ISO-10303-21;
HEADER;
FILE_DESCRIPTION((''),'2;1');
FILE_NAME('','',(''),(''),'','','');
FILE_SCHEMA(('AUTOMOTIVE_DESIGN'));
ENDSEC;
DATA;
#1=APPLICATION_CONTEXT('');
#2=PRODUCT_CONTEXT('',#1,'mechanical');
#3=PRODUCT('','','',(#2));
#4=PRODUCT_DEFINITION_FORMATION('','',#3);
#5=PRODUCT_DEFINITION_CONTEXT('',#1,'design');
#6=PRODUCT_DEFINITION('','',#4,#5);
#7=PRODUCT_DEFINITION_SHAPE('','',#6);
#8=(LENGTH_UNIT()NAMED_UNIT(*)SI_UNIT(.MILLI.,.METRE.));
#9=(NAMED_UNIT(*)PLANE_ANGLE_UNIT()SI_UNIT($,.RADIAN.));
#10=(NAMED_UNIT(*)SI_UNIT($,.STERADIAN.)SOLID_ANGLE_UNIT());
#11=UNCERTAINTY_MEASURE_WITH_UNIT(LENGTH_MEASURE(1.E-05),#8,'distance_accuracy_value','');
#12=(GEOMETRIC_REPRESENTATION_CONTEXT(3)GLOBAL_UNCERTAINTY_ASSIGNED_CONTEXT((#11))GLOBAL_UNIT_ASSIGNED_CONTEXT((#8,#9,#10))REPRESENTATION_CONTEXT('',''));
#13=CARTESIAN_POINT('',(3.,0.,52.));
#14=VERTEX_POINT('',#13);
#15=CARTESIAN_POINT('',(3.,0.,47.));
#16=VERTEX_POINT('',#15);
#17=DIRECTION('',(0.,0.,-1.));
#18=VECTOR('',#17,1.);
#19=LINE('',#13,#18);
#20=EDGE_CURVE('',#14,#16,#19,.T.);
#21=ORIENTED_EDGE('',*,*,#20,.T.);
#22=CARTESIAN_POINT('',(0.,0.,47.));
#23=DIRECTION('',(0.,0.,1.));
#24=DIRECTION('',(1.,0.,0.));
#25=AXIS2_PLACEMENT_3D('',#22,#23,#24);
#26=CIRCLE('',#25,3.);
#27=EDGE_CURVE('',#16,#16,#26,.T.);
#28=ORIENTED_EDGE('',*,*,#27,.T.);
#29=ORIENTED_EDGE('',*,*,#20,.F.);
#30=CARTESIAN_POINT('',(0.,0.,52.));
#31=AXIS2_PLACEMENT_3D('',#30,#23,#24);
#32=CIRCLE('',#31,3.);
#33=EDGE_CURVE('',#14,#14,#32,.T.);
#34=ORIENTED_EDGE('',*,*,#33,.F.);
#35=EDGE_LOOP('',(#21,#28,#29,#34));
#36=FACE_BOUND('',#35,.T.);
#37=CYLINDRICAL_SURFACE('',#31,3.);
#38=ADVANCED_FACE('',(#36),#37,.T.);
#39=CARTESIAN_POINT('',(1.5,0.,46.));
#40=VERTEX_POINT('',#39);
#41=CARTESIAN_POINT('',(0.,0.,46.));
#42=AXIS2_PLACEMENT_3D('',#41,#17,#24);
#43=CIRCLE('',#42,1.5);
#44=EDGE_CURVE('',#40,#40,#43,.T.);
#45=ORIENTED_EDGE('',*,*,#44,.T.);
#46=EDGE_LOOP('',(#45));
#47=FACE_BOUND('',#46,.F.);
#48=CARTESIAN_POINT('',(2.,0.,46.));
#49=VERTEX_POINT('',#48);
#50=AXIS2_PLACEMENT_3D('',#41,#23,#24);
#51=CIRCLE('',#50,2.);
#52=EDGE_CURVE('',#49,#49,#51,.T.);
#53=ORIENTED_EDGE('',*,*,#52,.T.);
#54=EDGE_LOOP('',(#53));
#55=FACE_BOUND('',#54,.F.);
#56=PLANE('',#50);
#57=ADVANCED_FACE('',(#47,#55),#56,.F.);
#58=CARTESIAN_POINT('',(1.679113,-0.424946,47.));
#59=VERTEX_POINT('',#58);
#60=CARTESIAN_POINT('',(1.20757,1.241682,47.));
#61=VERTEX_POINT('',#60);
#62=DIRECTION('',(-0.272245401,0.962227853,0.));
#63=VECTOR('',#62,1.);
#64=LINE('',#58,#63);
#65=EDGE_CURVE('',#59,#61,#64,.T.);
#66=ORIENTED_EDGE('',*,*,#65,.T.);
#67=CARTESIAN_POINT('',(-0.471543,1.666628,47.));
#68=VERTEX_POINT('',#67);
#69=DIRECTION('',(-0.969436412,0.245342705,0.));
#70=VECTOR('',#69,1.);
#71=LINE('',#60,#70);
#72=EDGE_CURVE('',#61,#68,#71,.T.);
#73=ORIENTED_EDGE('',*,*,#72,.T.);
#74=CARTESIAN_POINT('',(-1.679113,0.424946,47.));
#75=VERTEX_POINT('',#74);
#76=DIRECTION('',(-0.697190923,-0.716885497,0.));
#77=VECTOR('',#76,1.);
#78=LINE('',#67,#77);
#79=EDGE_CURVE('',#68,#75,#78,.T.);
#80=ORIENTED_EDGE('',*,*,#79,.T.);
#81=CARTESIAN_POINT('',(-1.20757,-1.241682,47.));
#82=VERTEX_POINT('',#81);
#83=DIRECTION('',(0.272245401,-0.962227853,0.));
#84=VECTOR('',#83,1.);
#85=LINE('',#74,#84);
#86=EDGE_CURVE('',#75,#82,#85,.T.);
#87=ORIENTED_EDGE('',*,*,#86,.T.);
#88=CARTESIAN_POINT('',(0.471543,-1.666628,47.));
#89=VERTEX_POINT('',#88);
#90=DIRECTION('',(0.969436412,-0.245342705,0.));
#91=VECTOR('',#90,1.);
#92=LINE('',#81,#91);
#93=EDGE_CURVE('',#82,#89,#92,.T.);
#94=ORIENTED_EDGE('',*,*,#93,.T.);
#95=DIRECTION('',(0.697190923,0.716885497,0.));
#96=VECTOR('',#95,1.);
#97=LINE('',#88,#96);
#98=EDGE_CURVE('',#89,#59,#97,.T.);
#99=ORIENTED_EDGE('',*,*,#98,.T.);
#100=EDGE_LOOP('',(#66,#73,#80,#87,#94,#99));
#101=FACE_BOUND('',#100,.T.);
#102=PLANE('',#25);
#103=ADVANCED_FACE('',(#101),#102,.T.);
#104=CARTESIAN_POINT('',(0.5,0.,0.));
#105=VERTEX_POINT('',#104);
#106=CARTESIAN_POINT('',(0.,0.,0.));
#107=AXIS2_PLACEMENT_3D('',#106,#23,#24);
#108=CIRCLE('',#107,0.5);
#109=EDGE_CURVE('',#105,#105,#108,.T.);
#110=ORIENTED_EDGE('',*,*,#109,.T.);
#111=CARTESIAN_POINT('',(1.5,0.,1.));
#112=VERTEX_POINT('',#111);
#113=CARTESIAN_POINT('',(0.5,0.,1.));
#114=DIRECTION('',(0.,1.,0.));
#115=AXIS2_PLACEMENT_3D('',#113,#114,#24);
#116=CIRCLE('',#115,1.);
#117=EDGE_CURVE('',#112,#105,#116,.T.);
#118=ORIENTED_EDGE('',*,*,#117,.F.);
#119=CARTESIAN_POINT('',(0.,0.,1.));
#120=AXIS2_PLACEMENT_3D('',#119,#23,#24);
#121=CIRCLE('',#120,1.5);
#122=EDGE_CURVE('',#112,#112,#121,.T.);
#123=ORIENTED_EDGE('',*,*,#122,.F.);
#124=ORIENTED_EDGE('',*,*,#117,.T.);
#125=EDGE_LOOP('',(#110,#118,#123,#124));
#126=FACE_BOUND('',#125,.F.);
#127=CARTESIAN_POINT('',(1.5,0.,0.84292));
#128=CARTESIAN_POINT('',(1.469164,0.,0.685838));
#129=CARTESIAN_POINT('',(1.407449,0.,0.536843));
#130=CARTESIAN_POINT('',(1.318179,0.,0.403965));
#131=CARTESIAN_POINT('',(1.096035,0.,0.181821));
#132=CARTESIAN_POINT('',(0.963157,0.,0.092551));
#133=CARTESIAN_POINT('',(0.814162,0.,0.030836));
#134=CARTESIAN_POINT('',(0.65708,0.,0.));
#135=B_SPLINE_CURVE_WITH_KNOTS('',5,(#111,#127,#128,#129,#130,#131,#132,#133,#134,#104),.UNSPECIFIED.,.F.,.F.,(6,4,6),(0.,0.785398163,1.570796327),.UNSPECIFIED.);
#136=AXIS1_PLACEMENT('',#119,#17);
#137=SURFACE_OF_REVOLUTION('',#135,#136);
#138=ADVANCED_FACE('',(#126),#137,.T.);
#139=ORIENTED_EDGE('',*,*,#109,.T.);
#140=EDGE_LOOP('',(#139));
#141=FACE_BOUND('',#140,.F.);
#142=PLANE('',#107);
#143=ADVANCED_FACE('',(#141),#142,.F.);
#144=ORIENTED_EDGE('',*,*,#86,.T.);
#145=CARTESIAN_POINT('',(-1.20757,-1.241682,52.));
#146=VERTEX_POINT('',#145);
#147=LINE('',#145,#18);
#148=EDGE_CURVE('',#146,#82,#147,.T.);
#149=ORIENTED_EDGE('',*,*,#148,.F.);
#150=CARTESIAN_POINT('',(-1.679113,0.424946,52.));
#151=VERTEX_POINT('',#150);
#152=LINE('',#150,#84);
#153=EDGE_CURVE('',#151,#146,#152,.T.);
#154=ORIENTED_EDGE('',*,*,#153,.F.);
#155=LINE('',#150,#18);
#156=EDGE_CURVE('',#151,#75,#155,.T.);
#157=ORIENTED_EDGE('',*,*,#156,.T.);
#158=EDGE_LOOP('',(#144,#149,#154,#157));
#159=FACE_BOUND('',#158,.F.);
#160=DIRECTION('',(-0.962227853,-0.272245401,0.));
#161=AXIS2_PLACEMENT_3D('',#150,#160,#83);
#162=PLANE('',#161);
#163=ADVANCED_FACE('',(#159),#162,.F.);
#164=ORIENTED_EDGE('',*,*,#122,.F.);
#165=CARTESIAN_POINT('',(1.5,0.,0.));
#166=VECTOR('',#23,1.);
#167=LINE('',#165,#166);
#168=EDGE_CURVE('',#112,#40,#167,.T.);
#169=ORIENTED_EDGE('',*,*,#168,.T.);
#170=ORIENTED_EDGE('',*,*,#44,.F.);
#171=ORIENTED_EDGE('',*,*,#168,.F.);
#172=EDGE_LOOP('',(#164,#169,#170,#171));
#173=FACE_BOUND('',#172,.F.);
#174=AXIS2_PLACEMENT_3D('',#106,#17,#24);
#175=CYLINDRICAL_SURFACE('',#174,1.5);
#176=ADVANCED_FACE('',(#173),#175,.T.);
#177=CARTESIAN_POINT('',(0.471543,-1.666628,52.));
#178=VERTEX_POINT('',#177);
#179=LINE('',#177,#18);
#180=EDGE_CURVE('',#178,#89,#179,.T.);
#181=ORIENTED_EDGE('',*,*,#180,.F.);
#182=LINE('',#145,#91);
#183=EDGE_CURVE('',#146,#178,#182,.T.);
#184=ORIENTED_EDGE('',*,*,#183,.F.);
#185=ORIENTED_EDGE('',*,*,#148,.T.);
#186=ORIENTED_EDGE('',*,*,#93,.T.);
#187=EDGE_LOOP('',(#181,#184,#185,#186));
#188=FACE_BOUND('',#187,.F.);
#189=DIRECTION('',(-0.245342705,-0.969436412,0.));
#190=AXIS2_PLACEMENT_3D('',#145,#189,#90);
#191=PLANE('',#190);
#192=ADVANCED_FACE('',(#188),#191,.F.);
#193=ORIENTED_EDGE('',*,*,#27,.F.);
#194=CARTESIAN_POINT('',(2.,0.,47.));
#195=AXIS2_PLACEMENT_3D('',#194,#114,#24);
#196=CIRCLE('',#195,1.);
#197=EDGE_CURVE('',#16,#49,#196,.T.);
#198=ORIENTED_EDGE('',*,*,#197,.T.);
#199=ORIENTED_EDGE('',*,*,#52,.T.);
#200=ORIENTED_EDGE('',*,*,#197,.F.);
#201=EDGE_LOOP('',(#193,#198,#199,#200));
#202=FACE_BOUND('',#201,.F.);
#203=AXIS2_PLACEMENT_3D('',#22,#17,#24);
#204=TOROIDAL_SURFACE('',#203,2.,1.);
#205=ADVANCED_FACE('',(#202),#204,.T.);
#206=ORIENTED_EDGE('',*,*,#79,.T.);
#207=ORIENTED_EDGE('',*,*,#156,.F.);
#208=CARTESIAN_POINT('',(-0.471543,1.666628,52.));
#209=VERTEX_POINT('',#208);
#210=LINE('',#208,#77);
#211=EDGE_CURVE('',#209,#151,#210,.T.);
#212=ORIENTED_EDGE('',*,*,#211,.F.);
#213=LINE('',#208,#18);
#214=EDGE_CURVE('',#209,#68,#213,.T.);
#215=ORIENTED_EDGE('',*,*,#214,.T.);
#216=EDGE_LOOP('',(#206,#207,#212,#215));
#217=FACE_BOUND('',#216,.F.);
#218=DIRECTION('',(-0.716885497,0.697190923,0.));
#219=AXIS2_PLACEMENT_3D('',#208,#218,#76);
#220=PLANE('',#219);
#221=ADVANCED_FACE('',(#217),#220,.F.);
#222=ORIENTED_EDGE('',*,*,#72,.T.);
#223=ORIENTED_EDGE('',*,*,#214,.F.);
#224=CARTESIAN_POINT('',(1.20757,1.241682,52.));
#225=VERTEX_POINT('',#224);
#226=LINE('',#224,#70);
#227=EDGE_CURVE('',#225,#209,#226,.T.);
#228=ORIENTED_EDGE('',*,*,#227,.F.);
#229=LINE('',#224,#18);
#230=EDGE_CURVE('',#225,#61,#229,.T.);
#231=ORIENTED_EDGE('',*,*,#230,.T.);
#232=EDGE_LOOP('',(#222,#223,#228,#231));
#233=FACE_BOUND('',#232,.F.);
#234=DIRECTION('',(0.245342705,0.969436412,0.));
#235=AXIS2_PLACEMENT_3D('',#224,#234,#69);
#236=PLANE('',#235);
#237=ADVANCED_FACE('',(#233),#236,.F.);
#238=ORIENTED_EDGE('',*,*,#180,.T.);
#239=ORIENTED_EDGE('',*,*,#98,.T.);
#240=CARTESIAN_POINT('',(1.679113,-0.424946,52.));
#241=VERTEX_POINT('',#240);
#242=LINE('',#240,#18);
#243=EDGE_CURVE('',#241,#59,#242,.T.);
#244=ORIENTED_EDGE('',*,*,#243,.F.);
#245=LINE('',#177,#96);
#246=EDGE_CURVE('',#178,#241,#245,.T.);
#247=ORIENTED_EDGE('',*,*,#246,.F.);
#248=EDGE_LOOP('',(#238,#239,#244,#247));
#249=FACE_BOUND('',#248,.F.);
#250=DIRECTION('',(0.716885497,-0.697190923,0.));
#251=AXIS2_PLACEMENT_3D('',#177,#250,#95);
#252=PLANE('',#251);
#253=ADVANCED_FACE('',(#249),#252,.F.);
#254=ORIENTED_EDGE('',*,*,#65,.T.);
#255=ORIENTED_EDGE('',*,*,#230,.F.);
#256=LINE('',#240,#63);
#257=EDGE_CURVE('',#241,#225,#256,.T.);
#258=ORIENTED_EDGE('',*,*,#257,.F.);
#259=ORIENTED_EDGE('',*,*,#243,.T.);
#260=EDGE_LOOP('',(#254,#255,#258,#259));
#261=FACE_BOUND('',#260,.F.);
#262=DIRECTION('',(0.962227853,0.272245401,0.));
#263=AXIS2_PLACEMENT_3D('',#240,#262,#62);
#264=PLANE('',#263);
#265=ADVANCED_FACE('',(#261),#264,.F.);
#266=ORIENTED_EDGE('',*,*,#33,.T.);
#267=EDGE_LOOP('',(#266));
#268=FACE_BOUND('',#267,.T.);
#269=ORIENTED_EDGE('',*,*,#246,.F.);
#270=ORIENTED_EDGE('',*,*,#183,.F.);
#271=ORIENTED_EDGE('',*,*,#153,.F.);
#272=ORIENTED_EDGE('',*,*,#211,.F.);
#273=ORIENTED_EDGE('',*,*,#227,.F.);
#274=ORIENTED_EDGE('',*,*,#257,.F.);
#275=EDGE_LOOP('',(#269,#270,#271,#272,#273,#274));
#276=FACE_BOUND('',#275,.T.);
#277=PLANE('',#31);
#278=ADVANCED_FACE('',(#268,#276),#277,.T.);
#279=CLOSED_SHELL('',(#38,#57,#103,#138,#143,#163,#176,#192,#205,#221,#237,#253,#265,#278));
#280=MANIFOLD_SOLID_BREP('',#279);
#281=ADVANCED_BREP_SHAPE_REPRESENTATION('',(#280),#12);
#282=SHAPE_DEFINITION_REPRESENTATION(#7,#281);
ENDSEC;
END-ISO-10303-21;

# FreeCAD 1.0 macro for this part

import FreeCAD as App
import Part
import Sketcher


def edges_at(feature, points):
    """Names of the edges that pass closest to the given points."""
    edges = feature.Shape.Edges
    near = lambda p: min(range(len(edges)), key=lambda i: edges[i].distToShape(Part.Vertex(*p))[0])
    return sorted({f"Edge{near(p) + 1}" for p in points})


def add_polygon(sketch, points):
    """Adds a closed chain of lines whose ends are joined by coincident constraints."""
    first, n = sketch.GeometryCount, len(points)
    for a, b in zip(points, points[1:] + points[:1]):
        sketch.addGeometry(Part.LineSegment(App.Vector(*a, 0), App.Vector(*b, 0)), False)
    for i in range(n):
        sketch.addConstraint(Sketcher.Constraint("Coincident", first + i, 2, first + (i + 1) % n, 1))

doc = App.newDocument("Part")
params = doc.addObject("Spreadsheet::Sheet", "Params")
for row, (alias, value) in enumerate([
    ("sketch1_diameter", "3 mm"),
    ("pad1_length", "52 mm"),
    ("sketch2_diameter", "6 mm"),
    ("pad2_length", "6 mm"),
    ("pocket1_length", "5 mm"),
    ("fillet_radius", "1 mm"),
], start=1):
    params.set(f"A{row}", alias)
    params.set(f"B{row}", "=" + value)
    params.setAlias(f"B{row}", alias)

body = doc.addObject("PartDesign::Body", "Body")

# Sketch on XY plane
sketch1 = body.newObject("Sketcher::SketchObject", "Sketch")
sketch1.AttachmentSupport = (doc.getObject("XY_Plane"), [""])
sketch1.MapMode = "FlatFace"
sketch1.addGeometry(Part.Circle(App.Vector(0, 0, 0), App.Vector(0, 0, 1), 1.5), False)
sketch1.addConstraint(Sketcher.Constraint("Coincident", 0, 3, -1, 1))
sketch1.addConstraint(Sketcher.Constraint("Diameter", 0, 3.0))
sketch1.setExpression("Constraints[1]", "Params.sketch1_diameter")
pad1 = body.newObject("PartDesign::Pad", "Pad")
pad1.Profile = sketch1
pad1.setExpression("Length", "Params.pad1_length")

# Sketch on XY plane
sketch2 = body.newObject("Sketcher::SketchObject", "Sketch001")
sketch2.AttachmentSupport = (doc.getObject("XY_Plane"), [""])
sketch2.MapMode = "FlatFace"
sketch2.AttachmentOffset = App.Placement(App.Vector(0, 0, 52), App.Rotation())
sketch2.addGeometry(Part.Circle(App.Vector(0, 0, 0), App.Vector(0, 0, 1), 3), False)
sketch2.addConstraint(Sketcher.Constraint("Coincident", 0, 3, -1, 1))
sketch2.addConstraint(Sketcher.Constraint("Diameter", 0, 6.0))
sketch2.setExpression("Constraints[1]", "Params.sketch2_diameter")
pad2 = body.newObject("PartDesign::Pad", "Pad001")
pad2.Profile = sketch2
pad2.setExpression("Length", "Params.pad2_length")
pad2.Reversed = True

# Sketch on XY plane
sketch3 = body.newObject("Sketcher::SketchObject", "Sketch002")
sketch3.AttachmentSupport = (doc.getObject("XY_Plane"), [""])
sketch3.MapMode = "FlatFace"
sketch3.AttachmentOffset = App.Placement(App.Vector(0, 0, 52), App.Rotation())
add_polygon(sketch3, [(0.5, -1.7), (1.7, -0.4), (1.2, 1.2), (-0.5, 1.7), (-1.7, 0.4), (-1.2, -1.2)])  # lines 0-5
sketch3.addConstraint(Sketcher.Constraint("Symmetric", 0, 2, 3, 2, -1, 1))
sketch3.addConstraint(Sketcher.Constraint("Symmetric", 1, 2, 4, 2, -1, 1))
sketch3.addConstraint(Sketcher.Constraint("Symmetric", 2, 2, 5, 2, -1, 1))
sketch3.addConstraint(Sketcher.Constraint("Equal", 0, 1))
sketch3.addConstraint(Sketcher.Constraint("Equal", 1, 2))
sketch3.addConstraint(Sketcher.Constraint("Distance", 0, 1.732051))
sketch3.addConstraint(Sketcher.Constraint("DistanceX", -1, 1, 1, 2, 1.20757))
sketch3.addConstraint(Sketcher.Constraint("DistanceX", 3, 2, 2, 2, 1.20757))
sketch3.addConstraint(Sketcher.Constraint("DistanceY", 0, 2, 3, 2, 0.849892))
pocket1 = body.newObject("PartDesign::Pocket", "Pocket")
pocket1.Profile = sketch3
pocket1.setExpression("Length", "Params.pocket1_length")
doc.recompute()

fillet = body.newObject("PartDesign::Fillet", "Fillet")
fillet.Base = (pocket1, edges_at(pocket1, [(-1.5, 0, 0), (-3, 0, 46)]))
fillet.setExpression("Radius", "Params.fillet_radius")

doc.recompute()
